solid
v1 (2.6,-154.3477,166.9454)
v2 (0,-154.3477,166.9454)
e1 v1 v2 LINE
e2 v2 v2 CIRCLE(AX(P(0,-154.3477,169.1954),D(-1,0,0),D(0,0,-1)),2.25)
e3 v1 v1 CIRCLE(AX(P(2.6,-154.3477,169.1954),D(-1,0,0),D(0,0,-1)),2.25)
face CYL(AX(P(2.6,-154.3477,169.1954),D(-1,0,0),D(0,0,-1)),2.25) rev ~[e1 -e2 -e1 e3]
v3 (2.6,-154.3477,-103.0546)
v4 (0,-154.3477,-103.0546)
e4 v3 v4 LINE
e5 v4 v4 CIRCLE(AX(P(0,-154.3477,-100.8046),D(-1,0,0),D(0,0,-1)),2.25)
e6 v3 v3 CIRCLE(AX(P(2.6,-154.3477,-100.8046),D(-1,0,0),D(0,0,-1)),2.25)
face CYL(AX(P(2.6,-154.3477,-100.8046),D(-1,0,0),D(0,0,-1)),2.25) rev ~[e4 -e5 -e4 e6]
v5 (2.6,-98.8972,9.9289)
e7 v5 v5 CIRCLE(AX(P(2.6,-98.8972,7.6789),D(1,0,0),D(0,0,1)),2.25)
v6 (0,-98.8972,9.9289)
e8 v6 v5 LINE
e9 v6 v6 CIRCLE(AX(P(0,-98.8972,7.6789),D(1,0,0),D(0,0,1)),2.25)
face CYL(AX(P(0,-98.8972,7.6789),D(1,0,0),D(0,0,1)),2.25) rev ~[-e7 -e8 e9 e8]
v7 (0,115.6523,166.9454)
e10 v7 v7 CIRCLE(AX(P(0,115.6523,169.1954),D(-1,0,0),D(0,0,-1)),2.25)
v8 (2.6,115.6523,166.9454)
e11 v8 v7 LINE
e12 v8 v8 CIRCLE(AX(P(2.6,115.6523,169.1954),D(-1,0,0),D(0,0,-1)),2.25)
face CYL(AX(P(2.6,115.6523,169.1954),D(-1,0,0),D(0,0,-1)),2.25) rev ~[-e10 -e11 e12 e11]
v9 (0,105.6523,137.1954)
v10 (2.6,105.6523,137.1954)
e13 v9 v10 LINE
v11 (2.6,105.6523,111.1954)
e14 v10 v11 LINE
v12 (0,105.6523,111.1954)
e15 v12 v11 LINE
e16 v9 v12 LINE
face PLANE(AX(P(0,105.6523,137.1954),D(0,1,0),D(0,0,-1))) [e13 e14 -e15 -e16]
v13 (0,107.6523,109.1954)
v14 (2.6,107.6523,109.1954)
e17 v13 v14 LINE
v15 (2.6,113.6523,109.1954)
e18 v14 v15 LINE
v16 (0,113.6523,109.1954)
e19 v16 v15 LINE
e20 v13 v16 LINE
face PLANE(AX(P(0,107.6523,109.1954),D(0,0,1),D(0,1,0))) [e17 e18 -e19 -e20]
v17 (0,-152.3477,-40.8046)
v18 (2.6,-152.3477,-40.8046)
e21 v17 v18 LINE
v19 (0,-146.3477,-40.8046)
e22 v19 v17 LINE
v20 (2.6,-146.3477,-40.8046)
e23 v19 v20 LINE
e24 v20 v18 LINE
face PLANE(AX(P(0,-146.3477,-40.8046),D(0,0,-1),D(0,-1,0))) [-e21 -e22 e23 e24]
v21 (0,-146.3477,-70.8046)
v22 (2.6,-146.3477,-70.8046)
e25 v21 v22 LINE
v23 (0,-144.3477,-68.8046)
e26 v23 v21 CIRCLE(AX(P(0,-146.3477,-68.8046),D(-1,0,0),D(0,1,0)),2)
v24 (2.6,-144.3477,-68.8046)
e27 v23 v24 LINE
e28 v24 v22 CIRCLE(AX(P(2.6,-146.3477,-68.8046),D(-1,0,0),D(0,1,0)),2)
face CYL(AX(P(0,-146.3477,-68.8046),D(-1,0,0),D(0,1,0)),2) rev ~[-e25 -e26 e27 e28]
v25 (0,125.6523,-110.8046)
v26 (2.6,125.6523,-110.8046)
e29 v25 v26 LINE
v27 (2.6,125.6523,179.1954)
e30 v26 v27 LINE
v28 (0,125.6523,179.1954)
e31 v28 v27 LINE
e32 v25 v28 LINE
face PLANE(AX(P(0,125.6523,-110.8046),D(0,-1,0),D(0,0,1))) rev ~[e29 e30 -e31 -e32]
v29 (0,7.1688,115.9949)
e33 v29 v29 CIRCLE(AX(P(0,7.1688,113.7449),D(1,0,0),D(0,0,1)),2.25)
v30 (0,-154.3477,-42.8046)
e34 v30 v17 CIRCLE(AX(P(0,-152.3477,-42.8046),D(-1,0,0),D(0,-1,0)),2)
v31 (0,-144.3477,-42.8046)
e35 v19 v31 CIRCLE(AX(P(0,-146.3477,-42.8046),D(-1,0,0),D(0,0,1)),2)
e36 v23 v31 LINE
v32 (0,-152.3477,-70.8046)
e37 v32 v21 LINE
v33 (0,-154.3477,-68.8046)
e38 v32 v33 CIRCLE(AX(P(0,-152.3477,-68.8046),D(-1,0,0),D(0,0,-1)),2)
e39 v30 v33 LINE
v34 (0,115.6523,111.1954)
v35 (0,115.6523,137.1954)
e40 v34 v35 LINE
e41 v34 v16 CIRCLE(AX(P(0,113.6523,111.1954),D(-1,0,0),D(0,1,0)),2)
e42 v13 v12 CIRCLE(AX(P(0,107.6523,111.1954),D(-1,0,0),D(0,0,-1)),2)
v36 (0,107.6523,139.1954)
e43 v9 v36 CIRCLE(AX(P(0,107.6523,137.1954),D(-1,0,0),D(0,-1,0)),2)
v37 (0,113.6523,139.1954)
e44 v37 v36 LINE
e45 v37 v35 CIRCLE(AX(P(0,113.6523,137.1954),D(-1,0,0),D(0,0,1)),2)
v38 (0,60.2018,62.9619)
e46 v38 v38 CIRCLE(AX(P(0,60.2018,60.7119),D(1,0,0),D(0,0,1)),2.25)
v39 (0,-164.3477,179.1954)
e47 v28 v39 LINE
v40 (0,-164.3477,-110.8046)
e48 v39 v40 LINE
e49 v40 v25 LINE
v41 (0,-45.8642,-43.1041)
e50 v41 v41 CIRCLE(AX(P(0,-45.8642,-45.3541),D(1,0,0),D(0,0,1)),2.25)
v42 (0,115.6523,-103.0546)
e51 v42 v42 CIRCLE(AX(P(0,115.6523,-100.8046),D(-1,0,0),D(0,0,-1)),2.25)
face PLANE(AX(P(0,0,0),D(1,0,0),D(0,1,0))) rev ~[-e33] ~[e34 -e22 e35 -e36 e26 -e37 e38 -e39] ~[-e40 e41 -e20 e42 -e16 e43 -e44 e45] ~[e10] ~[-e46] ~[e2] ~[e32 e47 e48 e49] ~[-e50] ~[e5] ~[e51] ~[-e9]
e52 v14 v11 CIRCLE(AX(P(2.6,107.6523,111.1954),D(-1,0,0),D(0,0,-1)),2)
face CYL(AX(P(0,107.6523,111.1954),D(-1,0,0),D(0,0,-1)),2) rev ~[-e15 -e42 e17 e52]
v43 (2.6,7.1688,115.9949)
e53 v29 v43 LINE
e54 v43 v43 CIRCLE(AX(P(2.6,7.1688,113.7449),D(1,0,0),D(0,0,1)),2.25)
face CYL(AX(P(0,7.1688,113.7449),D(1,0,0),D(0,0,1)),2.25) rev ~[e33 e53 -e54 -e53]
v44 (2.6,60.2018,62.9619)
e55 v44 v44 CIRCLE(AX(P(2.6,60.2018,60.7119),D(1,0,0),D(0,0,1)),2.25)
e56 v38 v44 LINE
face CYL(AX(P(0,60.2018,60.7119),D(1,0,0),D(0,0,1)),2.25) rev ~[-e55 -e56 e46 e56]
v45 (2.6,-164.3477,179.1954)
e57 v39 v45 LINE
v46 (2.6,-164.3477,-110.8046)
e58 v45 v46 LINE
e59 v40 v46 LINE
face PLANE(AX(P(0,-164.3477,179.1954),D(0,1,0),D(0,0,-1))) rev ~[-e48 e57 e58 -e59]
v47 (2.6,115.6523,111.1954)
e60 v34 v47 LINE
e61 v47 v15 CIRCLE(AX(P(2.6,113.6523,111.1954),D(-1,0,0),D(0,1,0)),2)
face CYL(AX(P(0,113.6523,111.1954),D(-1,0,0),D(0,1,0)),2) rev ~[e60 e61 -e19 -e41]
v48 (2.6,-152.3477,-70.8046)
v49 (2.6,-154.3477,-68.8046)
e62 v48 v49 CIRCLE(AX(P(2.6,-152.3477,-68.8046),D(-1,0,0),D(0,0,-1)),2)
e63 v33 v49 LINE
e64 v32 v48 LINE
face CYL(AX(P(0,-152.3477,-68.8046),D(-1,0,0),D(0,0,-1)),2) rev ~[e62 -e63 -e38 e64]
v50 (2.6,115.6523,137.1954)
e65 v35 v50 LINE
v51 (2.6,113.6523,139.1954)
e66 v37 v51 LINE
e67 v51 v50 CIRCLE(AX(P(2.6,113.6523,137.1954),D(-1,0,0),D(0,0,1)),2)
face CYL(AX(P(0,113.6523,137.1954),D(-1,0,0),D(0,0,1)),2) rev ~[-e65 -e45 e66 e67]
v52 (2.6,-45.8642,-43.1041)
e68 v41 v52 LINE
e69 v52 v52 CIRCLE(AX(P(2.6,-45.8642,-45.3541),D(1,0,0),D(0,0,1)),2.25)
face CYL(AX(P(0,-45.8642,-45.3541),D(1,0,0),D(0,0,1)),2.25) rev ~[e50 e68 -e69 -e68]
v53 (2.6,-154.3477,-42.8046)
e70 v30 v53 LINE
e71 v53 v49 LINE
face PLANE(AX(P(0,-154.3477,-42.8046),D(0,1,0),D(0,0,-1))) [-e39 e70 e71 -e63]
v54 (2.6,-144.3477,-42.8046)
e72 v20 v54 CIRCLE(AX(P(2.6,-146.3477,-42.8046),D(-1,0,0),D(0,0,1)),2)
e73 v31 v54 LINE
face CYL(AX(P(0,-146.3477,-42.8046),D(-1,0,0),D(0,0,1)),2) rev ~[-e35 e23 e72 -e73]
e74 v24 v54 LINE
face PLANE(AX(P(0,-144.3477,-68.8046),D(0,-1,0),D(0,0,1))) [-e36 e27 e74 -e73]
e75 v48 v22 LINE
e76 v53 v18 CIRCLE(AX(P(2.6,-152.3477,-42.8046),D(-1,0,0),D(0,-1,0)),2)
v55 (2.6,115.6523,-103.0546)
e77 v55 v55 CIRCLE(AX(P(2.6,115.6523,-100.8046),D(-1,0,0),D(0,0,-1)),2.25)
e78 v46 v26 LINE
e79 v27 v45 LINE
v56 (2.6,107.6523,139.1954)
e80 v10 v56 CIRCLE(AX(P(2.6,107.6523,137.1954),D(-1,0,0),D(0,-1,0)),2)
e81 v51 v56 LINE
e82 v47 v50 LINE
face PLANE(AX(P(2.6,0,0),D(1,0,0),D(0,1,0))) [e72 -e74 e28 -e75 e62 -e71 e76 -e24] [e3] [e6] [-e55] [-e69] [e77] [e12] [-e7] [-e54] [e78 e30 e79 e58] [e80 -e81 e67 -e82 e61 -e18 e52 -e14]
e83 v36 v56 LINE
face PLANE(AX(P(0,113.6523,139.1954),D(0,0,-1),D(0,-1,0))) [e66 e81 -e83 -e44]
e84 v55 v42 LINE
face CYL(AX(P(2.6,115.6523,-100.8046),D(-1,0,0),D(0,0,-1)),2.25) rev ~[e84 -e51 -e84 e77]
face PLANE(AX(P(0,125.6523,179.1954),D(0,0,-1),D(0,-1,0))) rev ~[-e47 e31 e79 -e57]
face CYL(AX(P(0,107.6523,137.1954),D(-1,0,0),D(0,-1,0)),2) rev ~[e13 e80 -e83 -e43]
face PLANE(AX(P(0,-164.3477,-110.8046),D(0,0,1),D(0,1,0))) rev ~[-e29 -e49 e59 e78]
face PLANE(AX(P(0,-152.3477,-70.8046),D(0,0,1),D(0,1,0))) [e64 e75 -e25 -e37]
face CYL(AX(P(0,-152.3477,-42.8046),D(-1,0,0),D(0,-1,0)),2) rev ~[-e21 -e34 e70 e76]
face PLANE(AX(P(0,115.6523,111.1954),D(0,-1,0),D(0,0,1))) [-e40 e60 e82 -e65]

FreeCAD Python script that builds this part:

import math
import FreeCAD as App
import Part
import Sketcher

V = App.Vector

doc = App.newDocument("Part")
body = doc.addObject("PartDesign::Body", "Body")

sketch1 = body.newObject("Sketcher::SketchObject", "Sketch")
sketch1.AttachmentSupport = (doc.getObject("YZ_Plane"), [""])
sketch1.MapMode = "FlatFace"
sketch1.addGeometry(Part.LineSegment(V(125.6523, -110.8046, 0), V(125.6523, 179.1954, 0)), False)
sketch1.addGeometry(Part.LineSegment(V(125.6523, 179.1954, 0), V(-164.3477, 179.1954, 0)), False)
sketch1.addGeometry(Part.LineSegment(V(-164.3477, 179.1954, 0), V(-164.3477, -110.8046, 0)), False)
sketch1.addGeometry(Part.LineSegment(V(-164.3477, -110.8046, 0), V(125.6523, -110.8046, 0)), False)
sketch1.addConstraint(Sketcher.Constraint("Coincident", 0, 2, 1, 1))
sketch1.addConstraint(Sketcher.Constraint("Coincident", 1, 2, 2, 1))
sketch1.addConstraint(Sketcher.Constraint("Coincident", 2, 2, 3, 1))
sketch1.addConstraint(Sketcher.Constraint("Coincident", 3, 2, 0, 1))
sketch1.addConstraint(Sketcher.Constraint("Vertical", 0))
sketch1.addConstraint(Sketcher.Constraint("Horizontal", 1))
sketch1.addConstraint(Sketcher.Constraint("Vertical", 2))
sketch1.addConstraint(Sketcher.Constraint("Horizontal", 3))
sketch1.addConstraint(Sketcher.Constraint("Equal", 3, 0))
sketch1.addConstraint(Sketcher.Constraint("DistanceX", 1, 2, 1, 1, 290.0))
sketch1.addConstraint(Sketcher.Constraint("DistanceX", -1, 1, 0, 2, 125.6523))
sketch1.addConstraint(Sketcher.Constraint("DistanceY", -1, 1, 0, 2, 179.1954))
pad1 = body.newObject("PartDesign::Pad", "Pad")
pad1.Profile = sketch1
pad1.Length = 2.6

sketch2 = body.newObject("Sketcher::SketchObject", "Sketch001")
sketch2.AttachmentSupport = (doc.getObject("YZ_Plane"), [""])
sketch2.MapMode = "FlatFace"
sketch2.AttachmentOffset = App.Placement(V(0, 0, 2.6), App.Rotation())
sketch2.addGeometry(Part.Circle(V(115.6523, 169.1954, 0), V(0, 0, 1), 2.25), False)
sketch2.addGeometry(Part.Circle(V(115.6523, -100.8046, 0), V(0, 0, 1), 2.25), False)
sketch2.addGeometry(Part.Circle(V(-154.3477, 169.1954, 0), V(0, 0, 1), 2.25), False)
sketch2.addGeometry(Part.Circle(V(-154.3477, -100.8046, 0), V(0, 0, 1), 2.25), False)
sketch2.addConstraint(Sketcher.Constraint("Equal", 0, 1))
sketch2.addConstraint(Sketcher.Constraint("Equal", 1, 2))
sketch2.addConstraint(Sketcher.Constraint("Equal", 2, 3))
sketch2.addConstraint(Sketcher.Constraint("Horizontal", 0, 3, 2, 3))
sketch2.addConstraint(Sketcher.Constraint("Horizontal", 1, 3, 3, 3))
sketch2.addConstraint(Sketcher.Constraint("Vertical", 0, 3, 1, 3))
sketch2.addConstraint(Sketcher.Constraint("Vertical", 2, 3, 3, 3))
sketch2.addConstraint(Sketcher.Constraint("Diameter", 0, 4.5))
sketch2.addConstraint(Sketcher.Constraint("DistanceY", 1, 3, 0, 3, 270.0))
sketch2.addConstraint(Sketcher.Constraint("DistanceX", 2, 3, 0, 3, 270.0))
sketch2.addConstraint(Sketcher.Constraint("DistanceX", -1, 1, 0, 3, 115.6523))
sketch2.addConstraint(Sketcher.Constraint("DistanceY", -1, 1, 0, 3, 169.1954))
doc.recompute()
hole = body.newObject("PartDesign::Hole", "Hole")
hole.Profile = sketch2
hole.ThreadType = "None"
hole.Diameter = 4.5
hole.DepthType = "Dimension"
hole.Depth = 10
hole.DrillPoint = "Angled"
hole.DrillPointAngle = 118

sketch3 = body.newObject("Sketcher::SketchObject", "Sketch002")
sketch3.AttachmentSupport = (doc.getObject("YZ_Plane"), [""])
sketch3.MapMode = "FlatFace"
sketch3.addGeometry(Part.LineSegment(V(-146.3477, -70.8046, 0), V(-152.3477, -70.8046, 0)), False)
sketch3.addGeometry(Part.ArcOfCircle(Part.Circle(V(-152.3477, -68.8046, 0), V(0, 0, 1), 2), math.radians(180), math.radians(270)), False)
sketch3.addGeometry(Part.LineSegment(V(-154.3477, -68.8046, 0), V(-154.3477, -42.8046, 0)), False)
sketch3.addGeometry(Part.ArcOfCircle(Part.Circle(V(-152.3477, -42.8046, 0), V(0, 0, 1), 2), math.radians(90), math.radians(180)), False)
sketch3.addGeometry(Part.LineSegment(V(-152.3477, -40.8046, 0), V(-146.3477, -40.8046, 0)), False)
sketch3.addGeometry(Part.ArcOfCircle(Part.Circle(V(-146.3477, -42.8046, 0), V(0, 0, 1), 2), math.radians(0), math.radians(90)), False)
sketch3.addGeometry(Part.LineSegment(V(-144.3477, -42.8046, 0), V(-144.3477, -68.8046, 0)), False)
sketch3.addGeometry(Part.ArcOfCircle(Part.Circle(V(-146.3477, -68.8046, 0), V(0, 0, 1), 2), math.radians(-90), math.radians(0)), False)
sketch3.addGeometry(Part.LineSegment(V(113.6523, 109.1954, 0), V(107.6523, 109.1954, 0)), False)
sketch3.addGeometry(Part.ArcOfCircle(Part.Circle(V(107.6523, 111.1954, 0), V(0, 0, 1), 2), math.radians(180), math.radians(270)), False)
sketch3.addGeometry(Part.LineSegment(V(105.6523, 111.1954, 0), V(105.6523, 137.1954, 0)), False)
sketch3.addGeometry(Part.ArcOfCircle(Part.Circle(V(107.6523, 137.1954, 0), V(0, 0, 1), 2), math.radians(90), math.radians(180)), False)
sketch3.addGeometry(Part.LineSegment(V(107.6523, 139.1954, 0), V(113.6523, 139.1954, 0)), False)
sketch3.addGeometry(Part.ArcOfCircle(Part.Circle(V(113.6523, 137.1954, 0), V(0, 0, 1), 2), math.radians(0), math.radians(90)), False)
sketch3.addGeometry(Part.LineSegment(V(115.6523, 137.1954, 0), V(115.6523, 111.1954, 0)), False)
sketch3.addGeometry(Part.ArcOfCircle(Part.Circle(V(113.6523, 111.1954, 0), V(0, 0, 1), 2), math.radians(-90), math.radians(0)), False)
sketch3.addConstraint(Sketcher.Constraint("Tangent", 0, 2, 1, 2))
sketch3.addConstraint(Sketcher.Constraint("Tangent", 1, 1, 2, 1))
sketch3.addConstraint(Sketcher.Constraint("Tangent", 2, 2, 3, 2))
sketch3.addConstraint(Sketcher.Constraint("Tangent", 3, 1, 4, 1))
sketch3.addConstraint(Sketcher.Constraint("Tangent", 4, 2, 5, 2))
sketch3.addConstraint(Sketcher.Constraint("Tangent", 5, 1, 6, 1))
sketch3.addConstraint(Sketcher.Constraint("Tangent", 6, 2, 7, 2))
sketch3.addConstraint(Sketcher.Constraint("Tangent", 7, 1, 0, 1))
sketch3.addConstraint(Sketcher.Constraint("Tangent", 8, 2, 9, 2))
sketch3.addConstraint(Sketcher.Constraint("Tangent", 9, 1, 10, 1))
sketch3.addConstraint(Sketcher.Constraint("Tangent", 10, 2, 11, 2))
sketch3.addConstraint(Sketcher.Constraint("Tangent", 11, 1, 12, 1))
sketch3.addConstraint(Sketcher.Constraint("Tangent", 12, 2, 13, 2))
sketch3.addConstraint(Sketcher.Constraint("Tangent", 13, 1, 14, 1))
sketch3.addConstraint(Sketcher.Constraint("Tangent", 14, 2, 15, 2))
sketch3.addConstraint(Sketcher.Constraint("Tangent", 15, 1, 8, 1))
sketch3.addConstraint(Sketcher.Constraint("Horizontal", 0))
sketch3.addConstraint(Sketcher.Constraint("Vertical", 2))
sketch3.addConstraint(Sketcher.Constraint("Horizontal", 4))
sketch3.addConstraint(Sketcher.Constraint("Vertical", 6))
sketch3.addConstraint(Sketcher.Constraint("Horizontal", 8))
sketch3.addConstraint(Sketcher.Constraint("Vertical", 10))
sketch3.addConstraint(Sketcher.Constraint("Horizontal", 12))
sketch3.addConstraint(Sketcher.Constraint("Vertical", 14))
sketch3.addConstraint(Sketcher.Constraint("Equal", 1, 3))
sketch3.addConstraint(Sketcher.Constraint("Equal", 3, 5))
sketch3.addConstraint(Sketcher.Constraint("Equal", 5, 7))
sketch3.addConstraint(Sketcher.Constraint("Equal", 7, 9))
sketch3.addConstraint(Sketcher.Constraint("Equal", 9, 11))
sketch3.addConstraint(Sketcher.Constraint("Equal", 11, 13))
sketch3.addConstraint(Sketcher.Constraint("Equal", 13, 15))
sketch3.addConstraint(Sketcher.Constraint("Equal", 4, 8))
sketch3.addConstraint(Sketcher.Constraint("Equal", 6, 10))
sketch3.addConstraint(Sketcher.Constraint("Radius", 1, 2.0))
sketch3.addConstraint(Sketcher.Constraint("DistanceX", 2, 2, 5, 1, 10.0))
sketch3.addConstraint(Sketcher.Constraint("DistanceY", 2, 1, 2, 2, 26.0))
sketch3.addConstraint(Sketcher.Constraint("DistanceX", 5, 3, 9, 3, 254.0))
sketch3.addConstraint(Sketcher.Constraint("DistanceY", 5, 3, 9, 3, 154.0))
sketch3.addConstraint(Sketcher.Constraint("DistanceX", 1, 3, -1, 1, 152.3477))
sketch3.addConstraint(Sketcher.Constraint("DistanceY", 1, 3, -1, 1, 68.8046))
pocket1 = body.newObject("PartDesign::Pocket", "Pocket")
pocket1.Profile = sketch3
pocket1.Length = 2.6
pocket1.Reversed = True

sketch4 = body.newObject("Sketcher::SketchObject", "Sketch003")
sketch4.AttachmentSupport = (doc.getObject("YZ_Plane"), [""])
sketch4.MapMode = "FlatFace"
sketch4.addGeometry(Part.Circle(V(7.1688, 113.7449, 0), V(0, 0, 1), 2.25), False)
sketch4.addGeometry(Part.Circle(V(-98.8972, 7.6789, 0), V(0, 0, 1), 2.25), False)
sketch4.addGeometry(Part.Circle(V(-45.8642, -45.3541, 0), V(0, 0, 1), 2.25), False)
sketch4.addGeometry(Part.Circle(V(60.2018, 60.7119, 0), V(0, 0, 1), 2.25), False)
sketch4.addGeometry(Part.Circle(V(7.1688, 113.7449, 0), V(0, 0, 1), 2.25), False)
sketch4.addConstraint(Sketcher.Constraint("Coincident", 4, 3, 0, 3))
sketch4.addConstraint(Sketcher.Constraint("Equal", 0, 1))
sketch4.addConstraint(Sketcher.Constraint("Equal", 1, 2))
sketch4.addConstraint(Sketcher.Constraint("Equal", 2, 3))
sketch4.addConstraint(Sketcher.Constraint("Equal", 3, 4))
sketch4.addConstraint(Sketcher.Constraint("Diameter", 0, 4.5))
sketch4.addConstraint(Sketcher.Constraint("DistanceY", -1, 1, 0, 3, 113.745))
sketch4.addConstraint(Sketcher.Constraint("DistanceY", -1, 1, 1, 3, 7.679))
sketch4.addConstraint(Sketcher.Constraint("DistanceY", 2, 3, -1, 1, 45.354))
sketch4.addConstraint(Sketcher.Constraint("DistanceY", -1, 1, 3, 3, 60.712))
sketch4.addConstraint(Sketcher.Constraint("DistanceX", 1, 3, 0, 3, 106.066))
sketch4.addConstraint(Sketcher.Constraint("DistanceX", 1, 3, 2, 3, 53.033))
sketch4.addConstraint(Sketcher.Constraint("DistanceX", 0, 3, 3, 3, 53.033))
sketch4.addConstraint(Sketcher.Constraint("DistanceX", -1, 1, 0, 3, 7.1688))
doc.recompute()
hole2 = body.newObject("PartDesign::Hole", "Hole001")
hole2.Profile = sketch4
hole2.ThreadType = "None"
hole2.Diameter = 4.5
hole2.DepthType = "ThroughAll"
hole2.Reversed = True

doc.recompute()
